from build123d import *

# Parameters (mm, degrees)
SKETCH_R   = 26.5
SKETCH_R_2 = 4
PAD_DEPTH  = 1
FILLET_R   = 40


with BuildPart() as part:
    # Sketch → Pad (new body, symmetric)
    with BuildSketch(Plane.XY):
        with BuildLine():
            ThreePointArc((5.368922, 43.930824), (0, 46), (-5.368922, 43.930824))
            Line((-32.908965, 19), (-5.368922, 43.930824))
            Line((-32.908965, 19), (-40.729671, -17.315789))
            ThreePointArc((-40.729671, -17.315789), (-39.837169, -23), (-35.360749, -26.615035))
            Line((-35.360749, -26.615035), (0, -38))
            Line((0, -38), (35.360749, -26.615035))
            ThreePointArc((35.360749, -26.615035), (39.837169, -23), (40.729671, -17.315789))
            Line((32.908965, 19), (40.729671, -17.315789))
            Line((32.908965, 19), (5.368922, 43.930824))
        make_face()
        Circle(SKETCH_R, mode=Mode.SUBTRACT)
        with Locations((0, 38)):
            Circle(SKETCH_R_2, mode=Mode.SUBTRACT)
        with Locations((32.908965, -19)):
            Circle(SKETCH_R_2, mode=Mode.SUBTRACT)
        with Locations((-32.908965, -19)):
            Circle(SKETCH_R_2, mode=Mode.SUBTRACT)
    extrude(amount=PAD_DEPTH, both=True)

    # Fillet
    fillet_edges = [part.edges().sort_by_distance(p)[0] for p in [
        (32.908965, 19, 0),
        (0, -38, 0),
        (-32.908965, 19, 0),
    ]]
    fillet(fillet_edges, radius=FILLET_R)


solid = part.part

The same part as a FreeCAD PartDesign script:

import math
import FreeCAD as App
import Part
import Sketcher
Q = App.Units.Quantity


def edges_at(feature, points):
    """Names of the edges that pass closest to the given points."""
    edges = feature.Shape.Edges
    near = lambda p: min(range(len(edges)), key=lambda i: edges[i].distToShape(Part.Vertex(*p))[0])
    return sorted({f"Edge{near(p) + 1}" for p in points})

doc = App.newDocument("Part")
params = doc.addObject("Spreadsheet::Sheet", "Params")
for row, (alias, value) in enumerate([
    ("sketch1_diameter", "8 mm"),
    ("sketch1_diameter2", "53 mm"),
    ("sketch1_radius", "7.999999 mm"),
    ("pad1_length", "2 mm"),
    ("fillet_radius", "40 mm"),
], start=1):
    params.set(f"A{row}", alias)
    params.set(f"B{row}", "=" + value)
    params.setAlias(f"B{row}", alias)

body = doc.addObject("PartDesign::Body", "Body")

sketch1 = body.newObject("Sketcher::SketchObject", "Sketch")
sketch1.AttachmentSupport = (doc.getObject("XY_Plane"), [""])
sketch1.MapMode = "FlatFace"
sketch1.addGeometry(Part.ArcOfCircle(Part.Circle(App.Vector(0, 38.000001, 0), App.Vector(0, 0, 1), 7.999999), math.radians(47.846796), math.radians(132.153204)), False)
sketch1.addGeometry(Part.LineSegment(App.Vector(-5.368922, 43.930824, 0), App.Vector(-32.908965, 19, 0)), False)
sketch1.addGeometry(Part.LineSegment(App.Vector(-32.908965, 19, 0), App.Vector(-40.729671, -17.315789, 0)), False)
sketch1.addGeometry(Part.ArcOfCircle(Part.Circle(App.Vector(-32.908966, -19, 0), App.Vector(0, 0, 1), 8), math.radians(167.846796), math.radians(252.153202)), False)
sketch1.addGeometry(Part.LineSegment(App.Vector(-35.360749, -26.615035, 0), App.Vector(0, -38, 0)), False)
sketch1.addGeometry(Part.LineSegment(App.Vector(0, -38, 0), App.Vector(35.360749, -26.615035, 0)), False)
sketch1.addGeometry(Part.ArcOfCircle(Part.Circle(App.Vector(32.908966, -19, 0), App.Vector(0, 0, 1), 8), math.radians(-72.153202), math.radians(12.153204)), False)
sketch1.addGeometry(Part.LineSegment(App.Vector(40.729671, -17.315789, 0), App.Vector(32.908965, 19, 0)), False)
sketch1.addGeometry(Part.LineSegment(App.Vector(32.908965, 19, 0), App.Vector(5.368922, 43.930824, 0)), False)
sketch1.addGeometry(Part.Circle(App.Vector(-32.908965, -19, 0), App.Vector(0, 0, 1), 4), False)
sketch1.addGeometry(Part.Circle(App.Vector(32.908965, -19, 0), App.Vector(0, 0, 1), 4), False)
sketch1.addGeometry(Part.Circle(App.Vector(0, 0, 0), App.Vector(0, 0, 1), 26.5), False)
sketch1.addGeometry(Part.Circle(App.Vector(0, 38, 0), App.Vector(0, 0, 1), 4), False)
sketch1.addConstraint(Sketcher.Constraint("Tangent", 0, 2, 1, 1))
sketch1.addConstraint(Sketcher.Constraint("Coincident", 1, 2, 2, 1))
sketch1.addConstraint(Sketcher.Constraint("Tangent", 2, 2, 3, 1))
sketch1.addConstraint(Sketcher.Constraint("Tangent", 3, 2, 4, 1))
sketch1.addConstraint(Sketcher.Constraint("Coincident", 4, 2, 5, 1))
sketch1.addConstraint(Sketcher.Constraint("Tangent", 5, 2, 6, 1))
sketch1.addConstraint(Sketcher.Constraint("Tangent", 6, 2, 7, 1))
sketch1.addConstraint(Sketcher.Constraint("Coincident", 7, 2, 8, 1))
sketch1.addConstraint(Sketcher.Constraint("Tangent", 8, 2, 0, 1))
sketch1.addConstraint(Sketcher.Constraint("Coincident", 11, 3, -1, 1))
sketch1.addConstraint(Sketcher.Constraint("Coincident", 9, 3, 3, 3))
sketch1.addConstraint(Sketcher.Constraint("Coincident", 10, 3, 6, 3))
sketch1.addConstraint(Sketcher.Constraint("Coincident", 12, 3, 0, 3))
sketch1.addConstraint(Sketcher.Constraint("Equal", 0, 3))
sketch1.addConstraint(Sketcher.Constraint("Equal", 3, 6))
sketch1.addConstraint(Sketcher.Constraint("Equal", 9, 10))
sketch1.addConstraint(Sketcher.Constraint("Equal", 10, 12))
sketch1.addConstraint(Sketcher.Constraint("Symmetric", 3, 3, 6, 3, -2))
sketch1.addConstraint(Sketcher.Constraint("Symmetric", 1, 2, 7, 2, -2))
sketch1.addConstraint(Sketcher.Constraint("PointOnObject", 0, 3, -2))
sketch1.addConstraint(Sketcher.Constraint("PointOnObject", 4, 2, -2))
sketch1.addConstraint(Sketcher.Constraint("Vertical", 9, 3, 1, 2))
sketch1.addConstraint(Sketcher.Constraint("Equal", 1, 2))
sketch1.addConstraint(Sketcher.Constraint("Equal", 2, 4))
sketch1.addConstraint(Sketcher.Constraint("Diameter", 9, Q("8 mm")))
sketch1.addConstraint(Sketcher.Constraint("Diameter", 11, Q("53 mm")))
sketch1.addConstraint(Sketcher.Constraint("Radius", 0, Q("7.999999 mm")))
sketch1.addConstraint(Sketcher.Constraint("DistanceY", -1, 1, 0, 3, Q("38.000001 mm")))
sketch1.addConstraint(Sketcher.Constraint("DistanceY", 3, 3, -1, 1, Q("19 mm")))
sketch1.addConstraint(Sketcher.Constraint("DistanceY", -1, 1, 1, 2, Q("19 mm")))
sketch1.setExpression("Constraints[24]", "Params.sketch1_diameter")
sketch1.setExpression("Constraints[25]", "Params.sketch1_diameter2")
sketch1.setExpression("Constraints[26]", "Params.sketch1_radius")
pad1 = body.newObject("PartDesign::Pad", "Pad")
pad1.Profile = sketch1
pad1.setExpression("Length", "Params.pad1_length")
pad1.Midplane = True
doc.recompute()

fillet = body.newObject("PartDesign::Fillet", "Fillet")
fillet.Base = (pad1, edges_at(pad1, [(32.909, 19, 0), (0, -38, 0), (-32.909, 19, 0)]))
fillet.setExpression("Radius", "Params.fillet_radius")

doc.recompute()
